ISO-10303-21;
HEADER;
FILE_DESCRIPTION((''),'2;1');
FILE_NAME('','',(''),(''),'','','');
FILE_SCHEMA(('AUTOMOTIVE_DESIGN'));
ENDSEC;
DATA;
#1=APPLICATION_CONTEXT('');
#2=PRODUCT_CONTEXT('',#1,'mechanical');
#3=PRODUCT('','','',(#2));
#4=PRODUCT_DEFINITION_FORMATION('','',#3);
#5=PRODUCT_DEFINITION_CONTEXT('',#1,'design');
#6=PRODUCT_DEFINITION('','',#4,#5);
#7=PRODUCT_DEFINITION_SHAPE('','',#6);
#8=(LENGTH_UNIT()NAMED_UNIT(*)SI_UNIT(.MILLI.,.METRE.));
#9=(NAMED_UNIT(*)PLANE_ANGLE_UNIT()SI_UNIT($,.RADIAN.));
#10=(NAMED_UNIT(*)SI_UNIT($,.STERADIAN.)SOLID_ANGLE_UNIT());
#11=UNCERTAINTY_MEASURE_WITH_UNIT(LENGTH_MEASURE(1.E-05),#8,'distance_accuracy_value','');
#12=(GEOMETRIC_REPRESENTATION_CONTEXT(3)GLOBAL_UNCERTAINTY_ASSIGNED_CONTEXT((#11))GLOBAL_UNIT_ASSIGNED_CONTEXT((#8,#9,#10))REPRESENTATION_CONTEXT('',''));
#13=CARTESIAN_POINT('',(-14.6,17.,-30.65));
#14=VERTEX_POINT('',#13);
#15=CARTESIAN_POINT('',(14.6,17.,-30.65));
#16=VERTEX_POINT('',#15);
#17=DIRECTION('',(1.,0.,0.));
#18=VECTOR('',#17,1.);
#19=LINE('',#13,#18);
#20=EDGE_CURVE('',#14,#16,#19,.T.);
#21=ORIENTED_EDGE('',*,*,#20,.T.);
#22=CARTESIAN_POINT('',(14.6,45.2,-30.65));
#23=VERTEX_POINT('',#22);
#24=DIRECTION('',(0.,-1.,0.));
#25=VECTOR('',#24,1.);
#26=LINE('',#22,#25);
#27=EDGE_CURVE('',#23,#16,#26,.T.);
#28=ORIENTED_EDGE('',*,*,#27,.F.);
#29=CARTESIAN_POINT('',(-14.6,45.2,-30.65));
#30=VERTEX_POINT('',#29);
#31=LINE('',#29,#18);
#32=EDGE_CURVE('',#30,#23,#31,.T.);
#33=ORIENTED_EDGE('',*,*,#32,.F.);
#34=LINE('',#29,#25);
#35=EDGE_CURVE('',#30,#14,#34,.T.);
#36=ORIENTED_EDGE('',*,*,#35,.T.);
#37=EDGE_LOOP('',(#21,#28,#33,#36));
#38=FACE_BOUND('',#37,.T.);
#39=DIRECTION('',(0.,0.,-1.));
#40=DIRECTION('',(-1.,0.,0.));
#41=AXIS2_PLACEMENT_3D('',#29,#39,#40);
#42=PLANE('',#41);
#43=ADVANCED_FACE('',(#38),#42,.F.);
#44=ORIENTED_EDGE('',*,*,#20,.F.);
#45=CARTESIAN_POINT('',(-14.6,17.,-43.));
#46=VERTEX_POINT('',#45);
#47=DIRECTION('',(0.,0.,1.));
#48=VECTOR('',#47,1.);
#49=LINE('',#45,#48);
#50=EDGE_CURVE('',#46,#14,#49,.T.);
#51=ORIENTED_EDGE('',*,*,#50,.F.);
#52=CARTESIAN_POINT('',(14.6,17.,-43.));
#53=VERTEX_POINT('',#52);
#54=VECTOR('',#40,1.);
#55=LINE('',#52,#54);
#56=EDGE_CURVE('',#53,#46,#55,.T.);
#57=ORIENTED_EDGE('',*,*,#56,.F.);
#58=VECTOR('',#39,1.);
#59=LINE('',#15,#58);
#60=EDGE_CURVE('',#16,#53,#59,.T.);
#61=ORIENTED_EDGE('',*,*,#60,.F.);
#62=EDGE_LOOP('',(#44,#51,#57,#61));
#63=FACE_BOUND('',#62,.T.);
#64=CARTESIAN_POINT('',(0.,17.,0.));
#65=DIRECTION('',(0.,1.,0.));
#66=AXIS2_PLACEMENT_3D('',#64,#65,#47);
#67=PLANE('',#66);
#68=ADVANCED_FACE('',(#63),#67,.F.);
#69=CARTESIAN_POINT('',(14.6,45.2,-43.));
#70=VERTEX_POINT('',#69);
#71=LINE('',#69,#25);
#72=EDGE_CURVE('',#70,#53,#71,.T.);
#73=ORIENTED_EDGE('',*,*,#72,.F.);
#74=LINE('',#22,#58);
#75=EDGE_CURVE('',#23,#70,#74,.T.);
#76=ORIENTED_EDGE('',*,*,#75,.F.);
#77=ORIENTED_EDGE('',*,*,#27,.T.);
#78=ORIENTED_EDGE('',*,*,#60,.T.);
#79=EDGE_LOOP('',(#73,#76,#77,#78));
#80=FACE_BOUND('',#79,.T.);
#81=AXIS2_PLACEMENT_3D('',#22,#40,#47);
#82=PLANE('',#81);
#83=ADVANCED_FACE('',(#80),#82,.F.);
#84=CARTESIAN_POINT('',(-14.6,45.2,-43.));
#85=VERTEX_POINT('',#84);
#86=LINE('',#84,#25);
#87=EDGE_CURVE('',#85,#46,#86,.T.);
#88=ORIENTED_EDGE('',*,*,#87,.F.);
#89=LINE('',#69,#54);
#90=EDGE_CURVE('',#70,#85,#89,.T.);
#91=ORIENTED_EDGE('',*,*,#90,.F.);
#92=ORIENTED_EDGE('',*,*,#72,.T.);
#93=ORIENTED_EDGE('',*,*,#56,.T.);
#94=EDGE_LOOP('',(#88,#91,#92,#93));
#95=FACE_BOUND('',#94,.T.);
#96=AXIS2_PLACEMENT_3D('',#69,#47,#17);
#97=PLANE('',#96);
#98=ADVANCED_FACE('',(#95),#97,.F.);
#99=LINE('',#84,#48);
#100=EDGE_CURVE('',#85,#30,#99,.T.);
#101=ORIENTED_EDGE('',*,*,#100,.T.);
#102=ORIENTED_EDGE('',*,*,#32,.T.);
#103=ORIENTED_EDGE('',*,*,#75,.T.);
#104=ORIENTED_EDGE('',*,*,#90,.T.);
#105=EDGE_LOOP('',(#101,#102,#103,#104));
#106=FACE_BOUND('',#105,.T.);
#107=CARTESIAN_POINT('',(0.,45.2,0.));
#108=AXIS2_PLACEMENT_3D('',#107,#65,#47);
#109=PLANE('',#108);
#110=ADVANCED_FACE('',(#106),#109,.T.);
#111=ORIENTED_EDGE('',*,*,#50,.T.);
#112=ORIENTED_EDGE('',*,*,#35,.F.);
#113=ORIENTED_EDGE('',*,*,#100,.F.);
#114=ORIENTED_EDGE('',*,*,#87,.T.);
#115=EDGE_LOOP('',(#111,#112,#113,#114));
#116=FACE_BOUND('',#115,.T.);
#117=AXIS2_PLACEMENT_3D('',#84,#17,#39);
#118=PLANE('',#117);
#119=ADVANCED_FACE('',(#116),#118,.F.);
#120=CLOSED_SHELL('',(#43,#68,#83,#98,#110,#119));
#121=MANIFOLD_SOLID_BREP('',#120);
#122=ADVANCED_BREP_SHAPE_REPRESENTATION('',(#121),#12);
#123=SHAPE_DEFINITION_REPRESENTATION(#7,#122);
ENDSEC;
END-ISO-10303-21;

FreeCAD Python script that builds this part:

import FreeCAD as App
import Part
import Sketcher

V = App.Vector

doc = App.newDocument("Part")
body = doc.addObject("PartDesign::Body", "Body")

sketch1 = body.newObject("Sketcher::SketchObject", "Sketch")
sketch1.AttachmentSupport = (doc.getObject("XZ_Plane"), [""])
sketch1.MapMode = "FlatFace"
sketch1.AttachmentOffset = App.Placement(V(0, 0, -17), App.Rotation())
sketch1.addGeometry(Part.LineSegment(V(-15, -43, 0), V(-15, -31, 0)), False)
sketch1.addGeometry(Part.LineSegment(V(-15, -31, 0), V(15, -31, 0)), False)
sketch1.addGeometry(Part.LineSegment(V(15, -31, 0), V(15, -43, 0)), False)
sketch1.addGeometry(Part.LineSegment(V(15, -43, 0), V(-15, -43, 0)), False)
sketch1.addConstraint(Sketcher.Constraint("Coincident", 0, 2, 1, 1))
sketch1.addConstraint(Sketcher.Constraint("Coincident", 1, 2, 2, 1))
sketch1.addConstraint(Sketcher.Constraint("Coincident", 2, 2, 3, 1))
sketch1.addConstraint(Sketcher.Constraint("Coincident", 3, 2, 0, 1))
sketch1.addConstraint(Sketcher.Constraint("Vertical", 0))
sketch1.addConstraint(Sketcher.Constraint("Horizontal", 1))
sketch1.addConstraint(Sketcher.Constraint("Vertical", 2))
sketch1.addConstraint(Sketcher.Constraint("Horizontal", 3))
sketch1.addConstraint(Sketcher.Constraint("DistanceX", 1, 1, 1, 2, 29.2))
sketch1.addConstraint(Sketcher.Constraint("DistanceY", 2, 2, -1, 1, 43.0))
sketch1.addConstraint(Sketcher.Constraint("DistanceY", 0, 1, 0, 2, 12.35))
sketch1.addConstraint(Sketcher.Constraint("DistanceX", 0, 2, -1, 1, 14.6))
pad1 = body.newObject("PartDesign::Pad", "Pad")
pad1.Profile = sketch1
pad1.Length = 28.2
pad1.Reversed = True

doc.recompute()
